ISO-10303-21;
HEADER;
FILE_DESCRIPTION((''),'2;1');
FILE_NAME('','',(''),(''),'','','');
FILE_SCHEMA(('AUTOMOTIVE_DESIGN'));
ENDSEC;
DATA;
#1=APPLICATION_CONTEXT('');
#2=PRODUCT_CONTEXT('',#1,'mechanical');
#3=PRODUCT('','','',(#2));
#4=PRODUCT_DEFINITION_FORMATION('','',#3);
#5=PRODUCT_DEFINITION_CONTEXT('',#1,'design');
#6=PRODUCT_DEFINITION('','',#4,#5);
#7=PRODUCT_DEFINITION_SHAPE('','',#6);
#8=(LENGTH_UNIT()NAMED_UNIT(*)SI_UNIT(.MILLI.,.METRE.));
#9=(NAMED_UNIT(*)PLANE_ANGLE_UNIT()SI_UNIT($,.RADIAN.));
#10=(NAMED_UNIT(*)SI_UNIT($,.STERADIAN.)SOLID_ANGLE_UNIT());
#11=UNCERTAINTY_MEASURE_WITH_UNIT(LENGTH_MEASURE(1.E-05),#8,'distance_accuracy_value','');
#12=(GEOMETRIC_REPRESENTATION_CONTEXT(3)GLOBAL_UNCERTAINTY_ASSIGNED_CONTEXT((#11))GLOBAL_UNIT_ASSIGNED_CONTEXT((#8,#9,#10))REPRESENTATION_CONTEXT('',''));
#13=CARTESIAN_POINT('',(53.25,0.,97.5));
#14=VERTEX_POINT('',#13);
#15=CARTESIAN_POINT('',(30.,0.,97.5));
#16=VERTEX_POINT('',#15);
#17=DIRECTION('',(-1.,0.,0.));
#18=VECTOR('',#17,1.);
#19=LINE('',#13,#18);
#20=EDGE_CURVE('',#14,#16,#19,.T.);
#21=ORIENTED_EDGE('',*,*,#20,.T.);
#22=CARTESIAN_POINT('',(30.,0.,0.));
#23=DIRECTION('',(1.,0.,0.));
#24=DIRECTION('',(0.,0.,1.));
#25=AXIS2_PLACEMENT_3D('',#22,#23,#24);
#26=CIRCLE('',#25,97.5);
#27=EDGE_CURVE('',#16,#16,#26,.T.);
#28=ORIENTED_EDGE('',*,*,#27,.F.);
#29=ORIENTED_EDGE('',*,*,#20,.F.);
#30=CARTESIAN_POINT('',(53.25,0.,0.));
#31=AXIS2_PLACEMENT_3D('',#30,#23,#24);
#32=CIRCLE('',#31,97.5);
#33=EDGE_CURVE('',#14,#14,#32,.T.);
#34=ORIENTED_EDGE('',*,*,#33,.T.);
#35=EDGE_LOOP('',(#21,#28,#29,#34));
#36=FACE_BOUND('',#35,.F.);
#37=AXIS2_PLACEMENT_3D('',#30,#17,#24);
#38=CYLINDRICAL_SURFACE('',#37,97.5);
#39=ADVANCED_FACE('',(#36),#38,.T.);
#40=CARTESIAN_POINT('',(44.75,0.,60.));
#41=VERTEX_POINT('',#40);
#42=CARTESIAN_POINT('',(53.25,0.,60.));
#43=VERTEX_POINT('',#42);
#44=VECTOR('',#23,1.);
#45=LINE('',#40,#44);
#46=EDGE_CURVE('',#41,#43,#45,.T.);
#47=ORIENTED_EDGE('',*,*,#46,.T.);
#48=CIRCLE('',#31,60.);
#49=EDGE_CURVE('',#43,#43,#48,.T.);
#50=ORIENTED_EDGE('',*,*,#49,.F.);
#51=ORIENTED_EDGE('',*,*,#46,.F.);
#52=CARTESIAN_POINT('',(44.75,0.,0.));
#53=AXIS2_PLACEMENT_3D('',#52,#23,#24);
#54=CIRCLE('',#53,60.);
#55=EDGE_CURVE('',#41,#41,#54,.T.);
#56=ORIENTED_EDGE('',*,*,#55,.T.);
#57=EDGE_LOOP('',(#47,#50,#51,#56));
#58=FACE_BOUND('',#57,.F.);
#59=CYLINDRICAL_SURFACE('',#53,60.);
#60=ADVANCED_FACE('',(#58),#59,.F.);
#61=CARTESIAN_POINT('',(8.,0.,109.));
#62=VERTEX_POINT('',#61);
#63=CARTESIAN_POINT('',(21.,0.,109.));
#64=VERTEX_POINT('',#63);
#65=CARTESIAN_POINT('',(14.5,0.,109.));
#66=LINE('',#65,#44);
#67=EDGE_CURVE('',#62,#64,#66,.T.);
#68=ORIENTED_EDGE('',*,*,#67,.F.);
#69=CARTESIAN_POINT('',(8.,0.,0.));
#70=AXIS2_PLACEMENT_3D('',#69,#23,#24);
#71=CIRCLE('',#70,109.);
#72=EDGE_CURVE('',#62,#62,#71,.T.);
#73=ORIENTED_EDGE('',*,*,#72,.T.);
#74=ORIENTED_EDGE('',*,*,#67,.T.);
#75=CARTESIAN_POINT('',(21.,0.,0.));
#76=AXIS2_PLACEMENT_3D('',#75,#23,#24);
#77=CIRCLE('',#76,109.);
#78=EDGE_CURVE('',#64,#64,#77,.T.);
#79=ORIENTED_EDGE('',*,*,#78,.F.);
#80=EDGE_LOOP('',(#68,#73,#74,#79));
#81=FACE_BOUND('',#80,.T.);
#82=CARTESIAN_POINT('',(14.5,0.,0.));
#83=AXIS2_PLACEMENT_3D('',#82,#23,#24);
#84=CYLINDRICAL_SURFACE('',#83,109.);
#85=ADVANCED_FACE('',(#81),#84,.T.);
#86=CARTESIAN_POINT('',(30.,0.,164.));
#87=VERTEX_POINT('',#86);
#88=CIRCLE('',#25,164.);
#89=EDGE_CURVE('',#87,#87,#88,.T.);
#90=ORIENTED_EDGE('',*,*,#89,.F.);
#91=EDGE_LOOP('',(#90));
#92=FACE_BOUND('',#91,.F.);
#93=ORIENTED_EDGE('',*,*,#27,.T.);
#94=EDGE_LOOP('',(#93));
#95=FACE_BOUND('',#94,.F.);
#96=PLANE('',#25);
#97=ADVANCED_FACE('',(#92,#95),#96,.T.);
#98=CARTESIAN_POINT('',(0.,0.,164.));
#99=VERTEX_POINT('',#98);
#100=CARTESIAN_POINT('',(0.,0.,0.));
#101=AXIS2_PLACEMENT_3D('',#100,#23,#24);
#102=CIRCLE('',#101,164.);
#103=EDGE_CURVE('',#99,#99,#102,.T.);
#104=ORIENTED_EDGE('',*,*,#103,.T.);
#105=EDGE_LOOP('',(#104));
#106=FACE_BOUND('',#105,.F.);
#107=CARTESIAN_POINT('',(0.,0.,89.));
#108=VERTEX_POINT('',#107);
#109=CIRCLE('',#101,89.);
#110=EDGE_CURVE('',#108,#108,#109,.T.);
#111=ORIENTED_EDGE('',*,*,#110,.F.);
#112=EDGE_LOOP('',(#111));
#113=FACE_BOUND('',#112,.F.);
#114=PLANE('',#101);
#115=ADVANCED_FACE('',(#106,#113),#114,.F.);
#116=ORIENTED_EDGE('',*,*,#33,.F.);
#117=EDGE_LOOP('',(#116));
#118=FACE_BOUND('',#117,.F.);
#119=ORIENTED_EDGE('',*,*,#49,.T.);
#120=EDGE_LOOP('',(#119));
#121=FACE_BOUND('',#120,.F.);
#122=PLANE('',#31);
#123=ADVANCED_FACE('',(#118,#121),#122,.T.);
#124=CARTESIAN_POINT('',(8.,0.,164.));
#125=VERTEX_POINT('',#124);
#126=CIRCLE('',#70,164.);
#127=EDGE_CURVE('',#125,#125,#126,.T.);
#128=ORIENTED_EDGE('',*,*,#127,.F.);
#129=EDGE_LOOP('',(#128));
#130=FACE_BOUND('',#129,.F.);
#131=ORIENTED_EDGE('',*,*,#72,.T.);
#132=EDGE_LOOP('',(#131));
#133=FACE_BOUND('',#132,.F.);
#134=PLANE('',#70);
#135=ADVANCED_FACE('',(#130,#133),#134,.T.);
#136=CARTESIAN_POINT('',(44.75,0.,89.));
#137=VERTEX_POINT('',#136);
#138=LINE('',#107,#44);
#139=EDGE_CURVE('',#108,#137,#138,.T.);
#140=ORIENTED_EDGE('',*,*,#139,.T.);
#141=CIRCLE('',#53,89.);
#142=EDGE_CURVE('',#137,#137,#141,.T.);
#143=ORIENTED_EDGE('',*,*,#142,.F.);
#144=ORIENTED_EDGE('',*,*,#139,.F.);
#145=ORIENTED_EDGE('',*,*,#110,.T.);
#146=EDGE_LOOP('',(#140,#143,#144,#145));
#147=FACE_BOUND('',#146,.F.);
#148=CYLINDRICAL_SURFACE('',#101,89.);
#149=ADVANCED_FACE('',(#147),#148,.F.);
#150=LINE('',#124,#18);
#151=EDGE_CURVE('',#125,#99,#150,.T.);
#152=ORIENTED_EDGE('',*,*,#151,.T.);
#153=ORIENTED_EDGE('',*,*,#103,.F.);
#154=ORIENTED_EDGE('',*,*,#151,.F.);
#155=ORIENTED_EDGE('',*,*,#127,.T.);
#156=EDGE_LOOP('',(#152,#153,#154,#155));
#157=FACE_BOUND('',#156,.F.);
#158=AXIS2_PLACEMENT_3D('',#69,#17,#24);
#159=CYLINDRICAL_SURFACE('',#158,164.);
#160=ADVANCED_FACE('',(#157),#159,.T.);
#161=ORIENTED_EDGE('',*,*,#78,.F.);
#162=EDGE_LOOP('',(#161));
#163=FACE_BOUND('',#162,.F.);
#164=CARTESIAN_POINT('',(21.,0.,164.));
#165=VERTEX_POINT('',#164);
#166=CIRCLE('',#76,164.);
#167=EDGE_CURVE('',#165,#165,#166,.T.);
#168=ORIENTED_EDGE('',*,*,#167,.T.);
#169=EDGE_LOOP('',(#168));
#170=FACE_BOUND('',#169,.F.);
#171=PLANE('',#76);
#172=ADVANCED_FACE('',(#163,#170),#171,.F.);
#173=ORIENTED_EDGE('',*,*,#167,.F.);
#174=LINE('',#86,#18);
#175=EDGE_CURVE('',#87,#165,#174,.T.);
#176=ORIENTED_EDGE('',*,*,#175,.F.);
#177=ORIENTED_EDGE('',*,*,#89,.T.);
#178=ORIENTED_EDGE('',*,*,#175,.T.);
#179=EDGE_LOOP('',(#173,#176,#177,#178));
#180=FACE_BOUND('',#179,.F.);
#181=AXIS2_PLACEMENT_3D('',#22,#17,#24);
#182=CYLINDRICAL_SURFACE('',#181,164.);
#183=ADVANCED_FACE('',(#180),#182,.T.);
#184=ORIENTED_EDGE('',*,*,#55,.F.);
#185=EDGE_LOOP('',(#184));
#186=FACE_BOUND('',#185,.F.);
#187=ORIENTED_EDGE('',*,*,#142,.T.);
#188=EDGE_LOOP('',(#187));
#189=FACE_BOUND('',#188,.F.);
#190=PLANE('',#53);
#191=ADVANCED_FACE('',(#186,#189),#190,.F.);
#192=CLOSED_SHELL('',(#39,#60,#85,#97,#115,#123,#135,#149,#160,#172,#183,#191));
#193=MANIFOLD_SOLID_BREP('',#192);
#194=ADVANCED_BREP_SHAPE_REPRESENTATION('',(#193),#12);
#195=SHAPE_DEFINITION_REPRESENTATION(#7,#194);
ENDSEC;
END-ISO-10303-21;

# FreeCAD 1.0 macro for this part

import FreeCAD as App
import Part
import Sketcher
from FreeCAD import Vector
Q = App.Units.Quantity


def add_polygon(sketch, points):
    """Adds a closed chain of lines whose ends are joined by coincident constraints."""
    first, n = sketch.GeometryCount, len(points)
    for a, b in zip(points, points[1:] + points[:1]):
        sketch.addGeometry(Part.LineSegment(App.Vector(*a, 0), App.Vector(*b, 0)), False)
    for i in range(n):
        sketch.addConstraint(Sketcher.Constraint("Coincident", first + i, 2, first + (i + 1) % n, 1))

doc = App.newDocument("Part")
body = doc.addObject("PartDesign::Body", "Body")

# Sketch on XZ plane
sketch1 = body.newObject("Sketcher::SketchObject", "Sketch")
sketch1.AttachmentSupport = (doc.getObject("XZ_Plane"), [""])
sketch1.MapMode = "FlatFace"
add_polygon(sketch1, [(0, 164), (0, 89), (45, 89), (45, 60), (53, 60), (53, 98), (30, 98), (30, 164), (21, 164), (21, 109), (8, 109), (8, 164)])  # lines 0-11
sketch1.addConstraint(Sketcher.Constraint("Vertical", 0))
sketch1.addConstraint(Sketcher.Constraint("Horizontal", 1))
sketch1.addConstraint(Sketcher.Constraint("Vertical", 2))
sketch1.addConstraint(Sketcher.Constraint("Horizontal", 3))
sketch1.addConstraint(Sketcher.Constraint("Vertical", 4))
sketch1.addConstraint(Sketcher.Constraint("Horizontal", 5))
sketch1.addConstraint(Sketcher.Constraint("Vertical", 6))
sketch1.addConstraint(Sketcher.Constraint("Horizontal", 7))
sketch1.addConstraint(Sketcher.Constraint("Vertical", 8))
sketch1.addConstraint(Sketcher.Constraint("Horizontal", 9))
sketch1.addConstraint(Sketcher.Constraint("Vertical", 10))
sketch1.addConstraint(Sketcher.Constraint("Horizontal", 11))
sketch1.addConstraint(Sketcher.Constraint("PointOnObject", 0, 2, -2))
sketch1.addConstraint(Sketcher.Constraint("Horizontal", 7, 2, 10, 2))
sketch1.addConstraint(Sketcher.Constraint("DistanceX", 7, 2, 7, 1, Q("9 mm")))
sketch1.addConstraint(Sketcher.Constraint("DistanceX", 9, 2, 9, 1, Q("13 mm")))
sketch1.addConstraint(Sketcher.Constraint("DistanceX", 11, 2, 11, 1, Q("8 mm")))
sketch1.addConstraint(Sketcher.Constraint("DistanceY", 0, 2, 0, 1, Q("75 mm")))
sketch1.addConstraint(Sketcher.Constraint("DistanceY", 2, 2, 2, 1, Q("29 mm")))
sketch1.addConstraint(Sketcher.Constraint("DistanceY", 8, 2, 8, 1, Q("55 mm")))
sketch1.addConstraint(Sketcher.Constraint("DistanceX", 3, 1, 3, 2, Q("8.5 mm")))
sketch1.addConstraint(Sketcher.Constraint("DistanceY", 4, 1, 4, 2, Q("37.5 mm")))
sketch1.addConstraint(Sketcher.Constraint("DistanceY", -1, 1, 0, 2, Q("89 mm")))
sketch1.addConstraint(Sketcher.Constraint("DistanceX", 1, 1, 1, 2, Q("44.75 mm")))
revolution = body.newObject("PartDesign::Revolution", "Revolution")
revolution.Profile = sketch1
revolution.ReferenceAxis = (sketch1, ["H_Axis"])
revolution.Angle = 360

doc.recompute()
